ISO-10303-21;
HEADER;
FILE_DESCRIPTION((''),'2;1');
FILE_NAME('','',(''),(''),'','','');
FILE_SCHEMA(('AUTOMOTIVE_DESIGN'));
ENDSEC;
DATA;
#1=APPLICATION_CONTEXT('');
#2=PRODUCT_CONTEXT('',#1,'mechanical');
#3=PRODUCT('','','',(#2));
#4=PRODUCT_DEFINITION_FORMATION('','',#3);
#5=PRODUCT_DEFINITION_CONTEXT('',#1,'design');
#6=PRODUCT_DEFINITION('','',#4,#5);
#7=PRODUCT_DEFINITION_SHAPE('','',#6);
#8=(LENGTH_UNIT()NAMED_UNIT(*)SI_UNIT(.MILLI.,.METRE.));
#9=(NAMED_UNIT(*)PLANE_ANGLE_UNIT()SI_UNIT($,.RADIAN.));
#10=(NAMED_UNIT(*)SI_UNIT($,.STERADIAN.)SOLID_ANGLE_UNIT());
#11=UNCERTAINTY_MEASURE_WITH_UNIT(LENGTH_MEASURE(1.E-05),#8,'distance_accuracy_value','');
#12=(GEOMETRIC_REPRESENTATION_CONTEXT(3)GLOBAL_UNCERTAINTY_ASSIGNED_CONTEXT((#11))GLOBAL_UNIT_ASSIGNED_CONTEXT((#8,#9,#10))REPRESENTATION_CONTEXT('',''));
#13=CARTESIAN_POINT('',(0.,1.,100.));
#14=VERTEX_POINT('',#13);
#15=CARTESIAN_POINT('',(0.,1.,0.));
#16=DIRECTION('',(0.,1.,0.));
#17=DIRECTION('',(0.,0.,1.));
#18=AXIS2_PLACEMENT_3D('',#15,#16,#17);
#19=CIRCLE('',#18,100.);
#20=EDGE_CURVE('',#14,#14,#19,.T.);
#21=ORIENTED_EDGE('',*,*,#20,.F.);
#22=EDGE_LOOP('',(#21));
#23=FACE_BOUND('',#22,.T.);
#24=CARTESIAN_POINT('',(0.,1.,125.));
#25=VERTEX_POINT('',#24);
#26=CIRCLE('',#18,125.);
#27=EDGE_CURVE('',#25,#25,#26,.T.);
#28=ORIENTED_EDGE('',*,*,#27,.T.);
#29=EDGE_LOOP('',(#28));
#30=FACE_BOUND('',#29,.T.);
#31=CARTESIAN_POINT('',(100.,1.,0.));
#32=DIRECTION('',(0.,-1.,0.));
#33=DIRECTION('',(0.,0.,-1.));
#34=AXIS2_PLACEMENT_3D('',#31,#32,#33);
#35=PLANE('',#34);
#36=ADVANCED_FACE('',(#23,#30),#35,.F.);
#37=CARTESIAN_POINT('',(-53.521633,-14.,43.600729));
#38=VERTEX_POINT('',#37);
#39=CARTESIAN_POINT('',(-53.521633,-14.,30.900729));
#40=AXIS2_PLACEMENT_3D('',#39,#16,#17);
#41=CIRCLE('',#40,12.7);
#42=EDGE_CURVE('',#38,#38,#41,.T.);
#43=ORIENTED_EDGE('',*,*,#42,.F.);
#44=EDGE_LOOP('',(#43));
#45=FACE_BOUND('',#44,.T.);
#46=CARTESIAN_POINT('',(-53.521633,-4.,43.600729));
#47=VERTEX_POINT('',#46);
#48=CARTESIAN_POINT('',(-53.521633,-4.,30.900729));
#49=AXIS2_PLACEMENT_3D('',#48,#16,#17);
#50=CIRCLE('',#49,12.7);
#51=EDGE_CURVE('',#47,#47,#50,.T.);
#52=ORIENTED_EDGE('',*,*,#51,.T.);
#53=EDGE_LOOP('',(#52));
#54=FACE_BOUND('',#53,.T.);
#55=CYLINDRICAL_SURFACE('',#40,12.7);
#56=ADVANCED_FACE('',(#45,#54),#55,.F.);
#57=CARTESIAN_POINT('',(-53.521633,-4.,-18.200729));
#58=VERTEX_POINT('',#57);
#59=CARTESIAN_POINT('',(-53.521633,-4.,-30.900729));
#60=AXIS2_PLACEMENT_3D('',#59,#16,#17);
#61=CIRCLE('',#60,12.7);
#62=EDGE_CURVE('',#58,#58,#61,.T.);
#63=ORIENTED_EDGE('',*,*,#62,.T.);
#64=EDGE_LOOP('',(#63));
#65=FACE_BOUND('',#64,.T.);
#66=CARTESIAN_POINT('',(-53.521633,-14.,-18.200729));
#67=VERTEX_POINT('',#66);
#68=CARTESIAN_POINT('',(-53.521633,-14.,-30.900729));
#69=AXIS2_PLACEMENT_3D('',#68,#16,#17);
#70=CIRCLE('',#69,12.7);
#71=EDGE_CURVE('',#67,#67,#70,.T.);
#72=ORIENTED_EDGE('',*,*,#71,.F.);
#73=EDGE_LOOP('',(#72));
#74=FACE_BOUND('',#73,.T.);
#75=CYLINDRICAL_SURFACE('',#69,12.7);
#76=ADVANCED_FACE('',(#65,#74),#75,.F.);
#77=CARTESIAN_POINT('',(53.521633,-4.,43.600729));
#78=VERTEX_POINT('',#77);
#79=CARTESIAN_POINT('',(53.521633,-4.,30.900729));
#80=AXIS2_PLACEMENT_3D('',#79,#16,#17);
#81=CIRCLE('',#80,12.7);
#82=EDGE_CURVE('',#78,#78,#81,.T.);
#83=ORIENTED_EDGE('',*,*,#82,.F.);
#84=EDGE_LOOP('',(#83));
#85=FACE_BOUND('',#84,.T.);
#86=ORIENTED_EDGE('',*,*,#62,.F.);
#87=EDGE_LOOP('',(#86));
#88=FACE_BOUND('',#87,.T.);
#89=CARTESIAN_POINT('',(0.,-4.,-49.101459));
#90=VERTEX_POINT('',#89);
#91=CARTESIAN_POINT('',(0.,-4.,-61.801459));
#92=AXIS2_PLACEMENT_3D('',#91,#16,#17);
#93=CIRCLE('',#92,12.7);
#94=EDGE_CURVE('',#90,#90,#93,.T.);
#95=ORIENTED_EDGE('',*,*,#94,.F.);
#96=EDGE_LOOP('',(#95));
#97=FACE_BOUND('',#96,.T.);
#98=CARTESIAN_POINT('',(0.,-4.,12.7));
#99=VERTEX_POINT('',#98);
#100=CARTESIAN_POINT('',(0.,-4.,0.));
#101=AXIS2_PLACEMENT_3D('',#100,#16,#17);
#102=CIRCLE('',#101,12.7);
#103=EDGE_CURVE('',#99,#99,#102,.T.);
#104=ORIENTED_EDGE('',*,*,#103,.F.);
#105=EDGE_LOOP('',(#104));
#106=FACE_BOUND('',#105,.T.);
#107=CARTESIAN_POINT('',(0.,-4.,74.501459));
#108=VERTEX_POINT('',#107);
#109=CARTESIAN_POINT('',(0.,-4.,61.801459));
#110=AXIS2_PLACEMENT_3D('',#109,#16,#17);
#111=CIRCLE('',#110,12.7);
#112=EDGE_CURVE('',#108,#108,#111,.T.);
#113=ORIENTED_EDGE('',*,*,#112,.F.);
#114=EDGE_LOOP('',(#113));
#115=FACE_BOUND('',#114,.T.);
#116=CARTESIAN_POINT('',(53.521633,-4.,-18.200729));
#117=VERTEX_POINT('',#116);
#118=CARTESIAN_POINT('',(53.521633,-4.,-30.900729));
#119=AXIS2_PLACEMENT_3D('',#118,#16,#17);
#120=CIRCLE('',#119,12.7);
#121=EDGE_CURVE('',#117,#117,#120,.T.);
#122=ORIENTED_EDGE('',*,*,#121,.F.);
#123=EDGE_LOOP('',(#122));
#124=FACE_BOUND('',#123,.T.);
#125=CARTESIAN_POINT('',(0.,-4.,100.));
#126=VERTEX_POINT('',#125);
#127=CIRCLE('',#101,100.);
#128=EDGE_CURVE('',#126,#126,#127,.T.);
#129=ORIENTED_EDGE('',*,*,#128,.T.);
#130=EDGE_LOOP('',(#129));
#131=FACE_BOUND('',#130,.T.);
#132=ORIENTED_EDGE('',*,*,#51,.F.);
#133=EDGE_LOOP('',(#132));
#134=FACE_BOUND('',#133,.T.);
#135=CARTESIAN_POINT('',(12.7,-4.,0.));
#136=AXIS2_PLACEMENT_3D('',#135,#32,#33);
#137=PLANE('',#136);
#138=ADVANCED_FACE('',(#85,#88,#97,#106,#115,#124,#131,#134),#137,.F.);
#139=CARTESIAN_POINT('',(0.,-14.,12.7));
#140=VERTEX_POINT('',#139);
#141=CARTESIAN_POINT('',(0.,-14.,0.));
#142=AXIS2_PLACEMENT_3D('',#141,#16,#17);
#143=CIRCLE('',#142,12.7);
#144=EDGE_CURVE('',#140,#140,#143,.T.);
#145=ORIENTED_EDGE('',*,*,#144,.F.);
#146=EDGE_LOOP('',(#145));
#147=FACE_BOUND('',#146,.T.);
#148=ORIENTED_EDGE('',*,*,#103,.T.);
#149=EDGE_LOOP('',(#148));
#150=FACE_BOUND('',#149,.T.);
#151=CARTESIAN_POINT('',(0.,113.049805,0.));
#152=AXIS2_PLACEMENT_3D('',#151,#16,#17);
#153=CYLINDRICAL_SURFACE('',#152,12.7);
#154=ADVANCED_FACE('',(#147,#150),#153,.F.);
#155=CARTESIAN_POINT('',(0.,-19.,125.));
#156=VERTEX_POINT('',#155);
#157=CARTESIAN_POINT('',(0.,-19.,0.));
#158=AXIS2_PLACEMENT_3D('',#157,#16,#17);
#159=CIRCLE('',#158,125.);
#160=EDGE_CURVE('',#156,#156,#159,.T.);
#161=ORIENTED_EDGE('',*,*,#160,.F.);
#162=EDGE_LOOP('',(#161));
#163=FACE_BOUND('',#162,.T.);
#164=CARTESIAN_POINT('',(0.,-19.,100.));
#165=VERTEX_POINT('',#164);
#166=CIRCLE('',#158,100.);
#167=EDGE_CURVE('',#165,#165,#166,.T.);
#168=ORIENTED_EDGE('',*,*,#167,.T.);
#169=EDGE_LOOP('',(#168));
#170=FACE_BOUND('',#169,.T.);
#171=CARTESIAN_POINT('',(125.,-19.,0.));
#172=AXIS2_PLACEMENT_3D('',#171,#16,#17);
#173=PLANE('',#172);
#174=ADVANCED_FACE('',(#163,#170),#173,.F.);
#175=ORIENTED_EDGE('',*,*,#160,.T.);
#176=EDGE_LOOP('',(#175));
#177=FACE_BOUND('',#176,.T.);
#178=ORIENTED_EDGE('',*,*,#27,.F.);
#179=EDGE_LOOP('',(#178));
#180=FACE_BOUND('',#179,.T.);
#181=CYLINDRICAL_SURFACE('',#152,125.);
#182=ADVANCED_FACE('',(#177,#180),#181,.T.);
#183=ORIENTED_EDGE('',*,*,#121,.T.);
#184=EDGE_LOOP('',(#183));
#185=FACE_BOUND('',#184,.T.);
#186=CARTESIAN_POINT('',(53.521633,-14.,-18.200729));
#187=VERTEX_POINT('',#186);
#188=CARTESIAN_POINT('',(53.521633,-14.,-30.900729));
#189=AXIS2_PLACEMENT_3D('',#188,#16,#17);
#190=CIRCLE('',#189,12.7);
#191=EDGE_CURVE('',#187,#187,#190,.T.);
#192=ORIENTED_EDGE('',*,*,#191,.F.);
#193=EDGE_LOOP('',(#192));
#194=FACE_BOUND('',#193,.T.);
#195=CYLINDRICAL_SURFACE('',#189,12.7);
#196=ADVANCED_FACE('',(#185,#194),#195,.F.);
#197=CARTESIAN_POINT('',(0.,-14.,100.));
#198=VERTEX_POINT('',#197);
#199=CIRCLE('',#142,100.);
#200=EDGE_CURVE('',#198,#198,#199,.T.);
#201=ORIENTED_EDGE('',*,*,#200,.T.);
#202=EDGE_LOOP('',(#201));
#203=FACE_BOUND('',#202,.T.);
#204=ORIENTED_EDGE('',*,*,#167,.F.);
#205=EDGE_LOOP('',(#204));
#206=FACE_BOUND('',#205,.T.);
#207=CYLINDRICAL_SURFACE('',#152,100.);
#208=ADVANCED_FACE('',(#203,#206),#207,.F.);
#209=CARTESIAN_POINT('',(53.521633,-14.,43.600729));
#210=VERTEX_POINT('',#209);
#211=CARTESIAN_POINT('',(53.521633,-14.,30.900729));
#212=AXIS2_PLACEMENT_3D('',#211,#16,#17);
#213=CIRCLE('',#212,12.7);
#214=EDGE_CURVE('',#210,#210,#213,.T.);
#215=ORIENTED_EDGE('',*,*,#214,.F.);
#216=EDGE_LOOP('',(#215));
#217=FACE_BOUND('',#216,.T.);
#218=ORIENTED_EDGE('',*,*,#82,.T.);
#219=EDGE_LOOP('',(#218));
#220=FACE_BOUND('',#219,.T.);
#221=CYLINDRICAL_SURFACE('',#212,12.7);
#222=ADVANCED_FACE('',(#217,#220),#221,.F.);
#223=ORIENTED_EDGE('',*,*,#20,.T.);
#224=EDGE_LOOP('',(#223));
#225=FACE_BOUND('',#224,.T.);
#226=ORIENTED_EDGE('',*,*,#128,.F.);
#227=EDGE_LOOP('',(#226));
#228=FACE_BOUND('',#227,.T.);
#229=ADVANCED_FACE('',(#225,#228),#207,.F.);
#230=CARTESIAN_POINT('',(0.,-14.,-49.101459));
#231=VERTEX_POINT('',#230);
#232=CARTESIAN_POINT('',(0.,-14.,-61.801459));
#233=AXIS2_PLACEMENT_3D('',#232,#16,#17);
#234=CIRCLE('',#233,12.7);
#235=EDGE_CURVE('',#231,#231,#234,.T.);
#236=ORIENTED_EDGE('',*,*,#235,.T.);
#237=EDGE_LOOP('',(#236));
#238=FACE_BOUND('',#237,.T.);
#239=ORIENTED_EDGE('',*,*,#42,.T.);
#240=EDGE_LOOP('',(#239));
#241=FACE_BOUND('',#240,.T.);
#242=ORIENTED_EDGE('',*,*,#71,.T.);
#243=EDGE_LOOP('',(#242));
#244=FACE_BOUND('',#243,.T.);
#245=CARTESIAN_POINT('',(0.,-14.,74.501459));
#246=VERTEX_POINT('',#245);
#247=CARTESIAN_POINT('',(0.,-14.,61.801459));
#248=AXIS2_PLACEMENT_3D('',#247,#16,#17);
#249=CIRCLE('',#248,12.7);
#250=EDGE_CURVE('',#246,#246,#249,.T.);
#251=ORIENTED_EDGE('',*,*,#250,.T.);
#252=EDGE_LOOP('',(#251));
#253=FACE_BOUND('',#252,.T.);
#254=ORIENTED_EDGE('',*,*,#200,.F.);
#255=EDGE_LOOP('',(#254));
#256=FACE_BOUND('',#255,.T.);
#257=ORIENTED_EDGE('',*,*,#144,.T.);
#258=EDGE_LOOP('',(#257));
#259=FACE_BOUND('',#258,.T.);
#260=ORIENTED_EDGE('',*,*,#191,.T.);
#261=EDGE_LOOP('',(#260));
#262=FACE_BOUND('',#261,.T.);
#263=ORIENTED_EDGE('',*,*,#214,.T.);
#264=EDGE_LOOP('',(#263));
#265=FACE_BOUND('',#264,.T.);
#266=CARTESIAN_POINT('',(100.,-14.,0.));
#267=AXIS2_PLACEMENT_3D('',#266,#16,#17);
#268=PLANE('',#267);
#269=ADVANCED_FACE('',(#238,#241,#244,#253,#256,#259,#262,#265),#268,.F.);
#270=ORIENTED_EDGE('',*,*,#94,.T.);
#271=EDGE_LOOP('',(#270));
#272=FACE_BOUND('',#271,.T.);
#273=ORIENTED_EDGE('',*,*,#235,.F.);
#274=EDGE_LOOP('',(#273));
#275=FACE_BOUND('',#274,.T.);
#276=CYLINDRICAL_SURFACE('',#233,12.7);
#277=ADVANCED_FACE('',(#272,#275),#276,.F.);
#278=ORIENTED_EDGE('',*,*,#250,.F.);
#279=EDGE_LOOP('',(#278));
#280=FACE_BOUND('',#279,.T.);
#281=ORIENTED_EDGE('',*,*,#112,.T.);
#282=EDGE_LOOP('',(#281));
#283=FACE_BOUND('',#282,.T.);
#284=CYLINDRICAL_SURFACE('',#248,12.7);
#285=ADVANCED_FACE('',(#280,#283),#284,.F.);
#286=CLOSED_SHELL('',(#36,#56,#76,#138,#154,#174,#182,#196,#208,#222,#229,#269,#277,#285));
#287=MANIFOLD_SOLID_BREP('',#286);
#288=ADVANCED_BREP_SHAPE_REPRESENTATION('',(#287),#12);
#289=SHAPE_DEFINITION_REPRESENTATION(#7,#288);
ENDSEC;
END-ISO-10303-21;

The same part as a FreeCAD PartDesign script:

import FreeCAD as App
import Part
import Sketcher

doc = App.newDocument("Part")
body = doc.addObject("PartDesign::Body", "Body")

sketch1 = body.newObject("Sketcher::SketchObject", "Sketch")
sketch1.AttachmentSupport = (doc.getObject("XY_Plane"), [""])
sketch1.MapMode = "FlatFace"
sketch1.addGeometry([
    Part.LineSegment(App.Vector(100, -4, 0), App.Vector(12.7, -4, 0)),
    Part.LineSegment(App.Vector(12.7, -4, 0), App.Vector(12.7, -14, 0)),
    Part.LineSegment(App.Vector(12.7, -14, 0), App.Vector(100, -14, 0)),
    Part.LineSegment(App.Vector(100, -14, 0), App.Vector(100, -19, 0)),
    Part.LineSegment(App.Vector(100, -19, 0), App.Vector(125, -19, 0)),
    Part.LineSegment(App.Vector(125, -19, 0), App.Vector(125, 1, 0)),
    Part.LineSegment(App.Vector(125, 1, 0), App.Vector(100, 1, 0)),
    Part.LineSegment(App.Vector(100, 1, 0), App.Vector(100, -4, 0)),
], False)
sketch1.addConstraint([
    Sketcher.Constraint("Coincident", 0, 2, 1, 1),
    Sketcher.Constraint("Coincident", 1, 2, 2, 1),
    Sketcher.Constraint("Coincident", 2, 2, 3, 1),
    Sketcher.Constraint("Coincident", 3, 2, 4, 1),
    Sketcher.Constraint("Coincident", 4, 2, 5, 1),
    Sketcher.Constraint("Coincident", 5, 2, 6, 1),
    Sketcher.Constraint("Coincident", 6, 2, 7, 1),
    Sketcher.Constraint("Coincident", 7, 2, 0, 1),
    Sketcher.Constraint("Horizontal", 0),
    Sketcher.Constraint("Vertical", 1),
    Sketcher.Constraint("Horizontal", 2),
    Sketcher.Constraint("Vertical", 3),
    Sketcher.Constraint("Horizontal", 4),
    Sketcher.Constraint("Vertical", 5),
    Sketcher.Constraint("Horizontal", 6),
    Sketcher.Constraint("Vertical", 7),
    Sketcher.Constraint("Vertical", 3, 2, 6, 2),
    Sketcher.Constraint("Equal", 3, 7),
    Sketcher.Constraint("DistanceX", 4, 1, 4, 2, 25.0),
    Sketcher.Constraint("DistanceY", 1, 2, 1, 1, 10.0),
    Sketcher.Constraint("DistanceY", 3, 2, 3, 1, 5.0),
    Sketcher.Constraint("DistanceX", 0, 2, 0, 1, 87.3),
    Sketcher.Constraint("DistanceY", 0, 2, -1, 1, 4.0),
    Sketcher.Constraint("DistanceX", -1, 1, 2, 2, 100.0),
])
revolution = body.newObject("PartDesign::Revolution", "Revolution")
revolution.Profile = sketch1
revolution.ReferenceAxis = (sketch1, ["V_Axis"])
revolution.Angle = 360

sketch2 = body.newObject("Sketcher::SketchObject", "Sketch001")
sketch2.AttachmentSupport = (doc.getObject("XZ_Plane"), [""])
sketch2.MapMode = "FlatFace"
sketch2.AttachmentOffset = App.Placement(App.Vector(0, 0, 4), App.Rotation())
sketch2.addGeometry([
    Part.Circle(App.Vector(0, -61.801459, 0), App.Vector(0, 0, 1), 12.7),
    Part.Circle(App.Vector(53.521633, -30.900729, 0), App.Vector(0, 0, 1), 12.7),
    Part.Circle(App.Vector(53.521633, 30.900729, 0), App.Vector(0, 0, 1), 12.7),
    Part.Circle(App.Vector(0, 61.801459, 0), App.Vector(0, 0, 1), 12.7),
    Part.Circle(App.Vector(-53.521633, 30.900729, 0), App.Vector(0, 0, 1), 12.7),
    Part.Circle(App.Vector(-53.521633, -30.900729, 0), App.Vector(0, 0, 1), 12.7),
], False)
sketch2.addConstraint([
    Sketcher.Constraint("Equal", 0, 1),
    Sketcher.Constraint("Equal", 1, 2),
    Sketcher.Constraint("Equal", 2, 3),
    Sketcher.Constraint("Equal", 3, 4),
    Sketcher.Constraint("Equal", 4, 5),
    Sketcher.Constraint("Symmetric", 0, 3, 3, 3, -1, 1),
    Sketcher.Constraint("Symmetric", 1, 3, 4, 3, -1, 1),
    Sketcher.Constraint("Symmetric", 2, 3, 5, 3, -1, 1),
    Sketcher.Constraint("Symmetric", 2, 3, 4, 3, -2),
    Sketcher.Constraint("PointOnObject", 0, 3, -2),
    Sketcher.Constraint("Diameter", 0, 25.4),
    Sketcher.Constraint("DistanceY", 0, 3, -1, 1, 61.801459),
    Sketcher.Constraint("DistanceY", 1, 3, -1, 1, 30.900729),
    Sketcher.Constraint("DistanceX", -1, 1, 1, 3, 53.521633),
])
pocket1 = body.newObject("PartDesign::Pocket", "Pocket")
pocket1.Profile = sketch2
pocket1.Length = 10
pocket1.Reversed = True

doc.recompute()
